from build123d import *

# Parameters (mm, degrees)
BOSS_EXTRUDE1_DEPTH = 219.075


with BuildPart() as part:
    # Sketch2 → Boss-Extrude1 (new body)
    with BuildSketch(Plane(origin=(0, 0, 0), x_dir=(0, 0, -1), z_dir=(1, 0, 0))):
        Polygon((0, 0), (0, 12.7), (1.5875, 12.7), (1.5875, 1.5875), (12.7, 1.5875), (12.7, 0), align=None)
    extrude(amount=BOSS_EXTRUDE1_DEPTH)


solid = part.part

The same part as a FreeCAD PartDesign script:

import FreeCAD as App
import Part
import Sketcher
from FreeCAD import Vector
Q = App.Units.Quantity

doc = App.newDocument("Part")
body = doc.addObject("PartDesign::Body", "Body")

# Sketch on YZ plane
sketch1 = doc.addObject("Sketcher::SketchObject", "Sketch")
body.addObject(sketch1)
sketch1.AttachmentSupport = (doc.YZ_Plane, [""])
sketch1.MapMode = "FlatFace"
sketch1.addGeometry([
    Part.LineSegment(Vector(12.7, 0, 0), Vector(0, 0, 0)),  # 0
    Part.LineSegment(Vector(0, 0, 0), Vector(0, -12.7, 0)),  # 1
    Part.LineSegment(Vector(0, -12.7, 0), Vector(1.6, -12.7, 0)),  # 2
    Part.LineSegment(Vector(1.6, -12.7, 0), Vector(1.6, -1.6, 0)),  # 3
    Part.LineSegment(Vector(1.6, -1.6, 0), Vector(12.7, -1.6, 0)),  # 4
    Part.LineSegment(Vector(12.7, -1.6, 0), Vector(12.7, 0, 0)),  # 5
], False)
sketch1.addConstraint([
    Sketcher.Constraint("Coincident", 0, 2, 1, 1),
    Sketcher.Constraint("Coincident", 1, 2, 2, 1),
    Sketcher.Constraint("Coincident", 2, 2, 3, 1),
    Sketcher.Constraint("Coincident", 3, 2, 4, 1),
    Sketcher.Constraint("Coincident", 4, 2, 5, 1),
    Sketcher.Constraint("Coincident", 5, 2, 0, 1),
    Sketcher.Constraint("Horizontal", 0),
    Sketcher.Constraint("Vertical", 1),
    Sketcher.Constraint("Horizontal", 2),
    Sketcher.Constraint("Vertical", 3),
    Sketcher.Constraint("Horizontal", 4),
    Sketcher.Constraint("Vertical", 5),
    Sketcher.Constraint("Coincident", 0, 2, -1, 1),
    Sketcher.Constraint("Equal", 0, 1),
    Sketcher.Constraint("Equal", 4, 3),
    Sketcher.Constraint("DistanceX", 0, 2, 0, 1, Q("0.5 in")),
    Sketcher.Constraint("DistanceX", 2, 1, 2, 2, Q("0.0625 in")),
])
pad1 = doc.addObject("PartDesign::Pad", "Pad")
body.addObject(pad1)
pad1.Profile = sketch1
pad1.Length = Q("8.625 in")

doc.recompute()
